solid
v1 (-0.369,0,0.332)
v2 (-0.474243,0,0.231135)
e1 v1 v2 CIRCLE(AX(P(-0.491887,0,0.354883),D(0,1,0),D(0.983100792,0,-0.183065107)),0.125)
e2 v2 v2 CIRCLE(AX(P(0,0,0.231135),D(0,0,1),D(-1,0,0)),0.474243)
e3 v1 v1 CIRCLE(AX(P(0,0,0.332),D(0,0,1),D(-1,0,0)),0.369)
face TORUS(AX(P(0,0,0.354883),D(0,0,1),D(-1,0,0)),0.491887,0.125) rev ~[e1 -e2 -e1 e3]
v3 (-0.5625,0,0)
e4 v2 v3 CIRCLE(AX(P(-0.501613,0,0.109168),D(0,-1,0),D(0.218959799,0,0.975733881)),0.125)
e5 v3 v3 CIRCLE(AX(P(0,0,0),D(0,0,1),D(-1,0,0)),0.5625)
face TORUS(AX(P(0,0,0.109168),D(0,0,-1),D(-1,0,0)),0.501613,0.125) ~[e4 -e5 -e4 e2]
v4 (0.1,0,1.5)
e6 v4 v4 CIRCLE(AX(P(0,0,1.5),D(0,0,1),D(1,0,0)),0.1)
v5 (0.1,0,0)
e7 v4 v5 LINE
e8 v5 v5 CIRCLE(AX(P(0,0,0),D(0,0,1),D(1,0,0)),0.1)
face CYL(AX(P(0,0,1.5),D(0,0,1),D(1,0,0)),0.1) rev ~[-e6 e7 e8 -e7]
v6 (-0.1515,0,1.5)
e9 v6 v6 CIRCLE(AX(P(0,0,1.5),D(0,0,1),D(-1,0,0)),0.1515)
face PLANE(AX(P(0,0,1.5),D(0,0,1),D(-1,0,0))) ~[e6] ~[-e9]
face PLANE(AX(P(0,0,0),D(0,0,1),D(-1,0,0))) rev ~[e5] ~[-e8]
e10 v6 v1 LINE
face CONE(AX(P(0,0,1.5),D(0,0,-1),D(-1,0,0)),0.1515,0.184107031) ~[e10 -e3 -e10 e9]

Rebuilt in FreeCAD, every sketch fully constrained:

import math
import FreeCAD as App
import Part
import Sketcher

V = App.Vector
Q = App.Units.Quantity

doc = App.newDocument("Part")
body = doc.addObject("PartDesign::Body", "Body")

sketch1 = doc.addObject("Sketcher::SketchObject", "Sketch")
body.addObject(sketch1)
sketch1.AttachmentSupport = (doc.XZ_Plane, [""])
sketch1.MapMode = "FlatFace"
sketch1.addGeometry(Part.LineSegment(V(-0.56, 0, 0), V(0, 0, 0)), False)
sketch1.addGeometry(Part.LineSegment(V(0, 0, 0), V(0, 1.5, 0)), False)
sketch1.addGeometry(Part.LineSegment(V(0, 1.5, 0), V(-0.15, 1.5, 0)), False)
sketch1.addGeometry(Part.LineSegment(V(-0.15, 1.5, 0), V(-0.37, 0.33, 0)), False)
sketch1.addGeometry(Part.ArcOfCircle(Part.Circle(V(-0.49, 0.35, 0), V(0, 0, 1), 0.12), math.radians(-82), math.radians(-11)), False)
sketch1.addGeometry(Part.ArcOfCircle(Part.Circle(V(-0.5, 0.11, 0), V(0, 0, 1), 0.12), math.radians(77), math.radians(241)), False)
sketch1.addConstraint(Sketcher.Constraint("Coincident", 0, 2, 1, 1))
sketch1.addConstraint(Sketcher.Constraint("Coincident", 1, 2, 2, 1))
sketch1.addConstraint(Sketcher.Constraint("Coincident", 2, 2, 3, 1))
sketch1.addConstraint(Sketcher.Constraint("Coincident", 3, 2, 4, 2))
sketch1.addConstraint(Sketcher.Constraint("Coincident", 4, 1, 5, 1))
sketch1.addConstraint(Sketcher.Constraint("Coincident", 5, 2, 0, 1))
sketch1.addConstraint(Sketcher.Constraint("Horizontal", 0))
sketch1.addConstraint(Sketcher.Constraint("Vertical", 1))
sketch1.addConstraint(Sketcher.Constraint("Horizontal", 2))
sketch1.addConstraint(Sketcher.Constraint("Coincident", 0, 2, -1, 1))
sketch1.addConstraint(Sketcher.Constraint("Equal", 4, 5))
sketch1.addConstraint(Sketcher.Constraint("DistanceY", 1, 1, 1, 2, Q("1.5 mm")))
sketch1.addConstraint(Sketcher.Constraint("Radius", 4, Q("0.125 mm")))
sketch1.addConstraint(Sketcher.Constraint("DistanceX", 0, 1, 0, 2, Q("0.5625 mm")))
sketch1.addConstraint(Sketcher.Constraint("DistanceX", 2, 2, 2, 1, Q("0.1515 mm")))
sketch1.addConstraint(Sketcher.Constraint("DistanceX", 3, 2, -1, 1, Q("0.369 mm")))
sketch1.addConstraint(Sketcher.Constraint("DistanceY", -1, 1, 3, 2, Q("0.332 mm")))
sketch1.addConstraint(Sketcher.Constraint("DistanceY", -1, 1, 5, 3, Q("0.109168 mm")))
sketch1.addConstraint(Sketcher.Constraint("DistanceY", 4, 1, 4, 3, Q("0.123748 mm")))
revolution = doc.addObject("PartDesign::Revolution", "Revolution")
body.addObject(revolution)
revolution.Profile = sketch1
revolution.ReferenceAxis = (sketch1, ["V_Axis"])
revolution.Angle = 360

sketch2 = doc.addObject("Sketcher::SketchObject", "Sketch001")
body.addObject(sketch2)
sketch2.AttachmentSupport = (doc.XY_Plane, [""])
sketch2.MapMode = "FlatFace"
sketch2.AttachmentOffset = App.Placement(V(0, 0, 1.5), App.Rotation())
sketch2.addGeometry(Part.Circle(V(0, 0, 0), V(0, 0, 1), 0.1), False)
sketch2.addConstraint(Sketcher.Constraint("Coincident", 0, 3, -1, 1))
sketch2.addConstraint(Sketcher.Constraint("Diameter", 0, Q("0.2 mm")))
pocket1 = doc.addObject("PartDesign::Pocket", "Pocket")
body.addObject(pocket1)
pocket1.Profile = sketch2
pocket1.Length = 1.5

doc.recompute()
